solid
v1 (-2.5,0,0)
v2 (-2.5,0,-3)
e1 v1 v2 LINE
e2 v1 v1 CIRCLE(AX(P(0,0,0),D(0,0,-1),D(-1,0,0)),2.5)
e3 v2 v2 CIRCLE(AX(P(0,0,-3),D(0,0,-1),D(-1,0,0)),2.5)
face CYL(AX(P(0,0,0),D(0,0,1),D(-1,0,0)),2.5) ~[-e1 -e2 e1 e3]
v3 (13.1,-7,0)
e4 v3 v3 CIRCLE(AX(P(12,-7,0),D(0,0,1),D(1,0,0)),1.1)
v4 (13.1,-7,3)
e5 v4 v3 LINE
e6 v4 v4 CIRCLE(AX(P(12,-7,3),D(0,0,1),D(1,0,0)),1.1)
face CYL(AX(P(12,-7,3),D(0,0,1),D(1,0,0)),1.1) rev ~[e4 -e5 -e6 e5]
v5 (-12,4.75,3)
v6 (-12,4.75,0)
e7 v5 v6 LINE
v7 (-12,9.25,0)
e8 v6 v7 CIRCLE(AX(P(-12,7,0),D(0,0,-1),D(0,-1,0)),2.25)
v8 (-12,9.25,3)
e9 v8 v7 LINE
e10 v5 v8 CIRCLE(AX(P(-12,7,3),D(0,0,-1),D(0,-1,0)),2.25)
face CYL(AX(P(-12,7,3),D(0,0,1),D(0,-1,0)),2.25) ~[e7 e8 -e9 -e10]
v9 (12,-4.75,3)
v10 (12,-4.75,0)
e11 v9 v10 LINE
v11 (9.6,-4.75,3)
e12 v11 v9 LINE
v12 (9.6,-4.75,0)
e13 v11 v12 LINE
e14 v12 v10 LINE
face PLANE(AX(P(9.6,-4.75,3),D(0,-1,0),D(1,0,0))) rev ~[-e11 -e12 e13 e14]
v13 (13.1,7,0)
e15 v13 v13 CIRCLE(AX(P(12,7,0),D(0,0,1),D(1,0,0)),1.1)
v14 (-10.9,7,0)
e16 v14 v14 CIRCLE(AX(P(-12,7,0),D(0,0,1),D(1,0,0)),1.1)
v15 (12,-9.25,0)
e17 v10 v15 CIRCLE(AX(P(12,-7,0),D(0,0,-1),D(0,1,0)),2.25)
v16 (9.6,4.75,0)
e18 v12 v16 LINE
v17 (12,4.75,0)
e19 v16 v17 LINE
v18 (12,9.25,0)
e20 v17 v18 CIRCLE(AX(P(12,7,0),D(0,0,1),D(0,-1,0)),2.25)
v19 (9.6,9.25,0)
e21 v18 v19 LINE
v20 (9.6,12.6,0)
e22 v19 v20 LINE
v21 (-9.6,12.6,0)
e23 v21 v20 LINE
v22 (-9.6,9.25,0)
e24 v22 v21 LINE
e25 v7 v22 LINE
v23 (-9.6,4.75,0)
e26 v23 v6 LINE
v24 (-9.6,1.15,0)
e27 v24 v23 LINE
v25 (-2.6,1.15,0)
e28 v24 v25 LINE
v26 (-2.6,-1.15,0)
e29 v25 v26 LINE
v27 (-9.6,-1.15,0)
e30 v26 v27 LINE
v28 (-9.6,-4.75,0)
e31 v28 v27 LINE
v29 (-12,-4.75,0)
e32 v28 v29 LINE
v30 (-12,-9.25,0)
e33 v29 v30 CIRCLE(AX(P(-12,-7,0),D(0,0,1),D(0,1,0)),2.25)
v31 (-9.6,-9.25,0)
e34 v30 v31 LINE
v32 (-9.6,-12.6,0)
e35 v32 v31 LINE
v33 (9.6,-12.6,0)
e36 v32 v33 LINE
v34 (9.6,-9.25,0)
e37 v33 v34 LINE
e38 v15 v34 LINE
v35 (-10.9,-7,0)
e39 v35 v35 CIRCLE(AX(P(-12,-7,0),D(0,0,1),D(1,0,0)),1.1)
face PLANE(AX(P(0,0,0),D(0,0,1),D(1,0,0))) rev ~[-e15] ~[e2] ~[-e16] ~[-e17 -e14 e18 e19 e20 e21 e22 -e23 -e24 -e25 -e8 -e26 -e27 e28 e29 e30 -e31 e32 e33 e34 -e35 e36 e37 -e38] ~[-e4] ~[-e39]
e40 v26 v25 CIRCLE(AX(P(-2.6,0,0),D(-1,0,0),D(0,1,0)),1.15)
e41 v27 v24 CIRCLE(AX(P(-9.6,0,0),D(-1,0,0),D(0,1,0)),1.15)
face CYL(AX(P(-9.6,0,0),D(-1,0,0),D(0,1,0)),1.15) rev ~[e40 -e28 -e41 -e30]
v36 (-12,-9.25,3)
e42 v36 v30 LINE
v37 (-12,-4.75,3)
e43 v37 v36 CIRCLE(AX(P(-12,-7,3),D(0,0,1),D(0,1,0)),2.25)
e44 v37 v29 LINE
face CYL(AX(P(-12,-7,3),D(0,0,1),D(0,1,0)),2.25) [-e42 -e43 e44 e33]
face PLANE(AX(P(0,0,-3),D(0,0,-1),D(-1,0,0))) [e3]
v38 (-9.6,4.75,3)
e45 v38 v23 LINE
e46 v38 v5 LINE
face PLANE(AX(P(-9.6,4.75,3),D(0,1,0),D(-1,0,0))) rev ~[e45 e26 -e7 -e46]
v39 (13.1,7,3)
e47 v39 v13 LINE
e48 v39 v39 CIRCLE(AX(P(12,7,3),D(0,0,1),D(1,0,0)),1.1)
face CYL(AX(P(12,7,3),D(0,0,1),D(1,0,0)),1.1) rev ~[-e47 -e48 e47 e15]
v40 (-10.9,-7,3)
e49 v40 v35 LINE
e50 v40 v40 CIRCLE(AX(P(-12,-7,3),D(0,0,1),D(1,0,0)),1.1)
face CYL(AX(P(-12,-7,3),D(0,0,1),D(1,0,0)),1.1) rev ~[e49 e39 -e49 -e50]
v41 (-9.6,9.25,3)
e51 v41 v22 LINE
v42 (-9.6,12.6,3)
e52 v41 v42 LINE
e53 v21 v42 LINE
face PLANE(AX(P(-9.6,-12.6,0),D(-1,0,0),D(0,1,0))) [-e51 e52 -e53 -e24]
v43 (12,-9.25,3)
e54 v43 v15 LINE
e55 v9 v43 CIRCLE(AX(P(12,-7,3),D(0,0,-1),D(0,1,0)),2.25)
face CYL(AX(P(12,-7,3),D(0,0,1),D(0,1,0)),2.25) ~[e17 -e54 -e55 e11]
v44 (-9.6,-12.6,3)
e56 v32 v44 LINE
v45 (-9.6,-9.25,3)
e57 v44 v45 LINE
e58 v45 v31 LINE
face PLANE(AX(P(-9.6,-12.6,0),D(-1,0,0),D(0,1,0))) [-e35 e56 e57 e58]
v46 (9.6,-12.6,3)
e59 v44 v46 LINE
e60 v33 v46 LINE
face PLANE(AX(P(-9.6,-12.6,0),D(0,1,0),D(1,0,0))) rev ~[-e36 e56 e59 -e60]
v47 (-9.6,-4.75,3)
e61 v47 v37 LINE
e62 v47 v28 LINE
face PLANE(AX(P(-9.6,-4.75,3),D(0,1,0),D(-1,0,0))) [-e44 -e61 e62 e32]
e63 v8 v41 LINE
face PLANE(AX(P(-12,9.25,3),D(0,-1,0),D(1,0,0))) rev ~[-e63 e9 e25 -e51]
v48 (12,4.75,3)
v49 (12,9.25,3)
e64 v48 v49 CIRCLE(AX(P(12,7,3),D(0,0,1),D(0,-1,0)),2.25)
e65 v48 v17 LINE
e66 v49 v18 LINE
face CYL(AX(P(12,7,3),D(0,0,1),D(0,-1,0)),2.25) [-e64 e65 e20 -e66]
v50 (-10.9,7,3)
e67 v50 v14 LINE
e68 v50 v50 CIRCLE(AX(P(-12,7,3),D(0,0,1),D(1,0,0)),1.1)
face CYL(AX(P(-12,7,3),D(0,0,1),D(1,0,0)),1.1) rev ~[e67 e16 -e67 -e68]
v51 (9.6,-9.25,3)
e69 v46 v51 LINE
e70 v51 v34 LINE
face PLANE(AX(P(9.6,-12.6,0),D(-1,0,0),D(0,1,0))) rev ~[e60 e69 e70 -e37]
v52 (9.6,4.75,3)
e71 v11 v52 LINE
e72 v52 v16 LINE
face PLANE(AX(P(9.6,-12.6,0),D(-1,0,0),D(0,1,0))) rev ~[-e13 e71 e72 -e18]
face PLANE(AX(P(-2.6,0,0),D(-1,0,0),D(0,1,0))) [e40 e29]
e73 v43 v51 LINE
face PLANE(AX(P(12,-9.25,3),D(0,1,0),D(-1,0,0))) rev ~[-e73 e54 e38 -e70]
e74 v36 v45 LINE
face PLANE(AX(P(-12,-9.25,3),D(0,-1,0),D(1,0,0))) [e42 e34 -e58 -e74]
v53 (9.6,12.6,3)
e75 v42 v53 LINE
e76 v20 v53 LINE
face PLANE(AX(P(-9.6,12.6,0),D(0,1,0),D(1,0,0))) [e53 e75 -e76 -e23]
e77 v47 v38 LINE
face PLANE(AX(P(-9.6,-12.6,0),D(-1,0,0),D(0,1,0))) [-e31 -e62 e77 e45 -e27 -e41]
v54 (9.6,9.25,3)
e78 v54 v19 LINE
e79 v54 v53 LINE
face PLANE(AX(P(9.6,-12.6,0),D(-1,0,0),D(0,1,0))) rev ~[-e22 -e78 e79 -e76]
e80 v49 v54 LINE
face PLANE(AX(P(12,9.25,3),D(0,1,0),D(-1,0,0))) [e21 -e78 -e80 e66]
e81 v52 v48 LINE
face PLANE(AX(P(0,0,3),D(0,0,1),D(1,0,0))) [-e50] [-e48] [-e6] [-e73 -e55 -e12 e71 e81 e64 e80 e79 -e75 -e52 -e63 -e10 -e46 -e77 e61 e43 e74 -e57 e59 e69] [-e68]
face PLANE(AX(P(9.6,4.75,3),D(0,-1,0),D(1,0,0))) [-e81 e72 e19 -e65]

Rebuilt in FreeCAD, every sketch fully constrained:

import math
import FreeCAD as App
import Part
import Sketcher
Q = App.Units.Quantity

doc = App.newDocument("Part")
body = doc.addObject("PartDesign::Body", "Body")

# Sketch on XY plane
sketch1 = body.newObject("Sketcher::SketchObject", "Sketch")
sketch1.AttachmentSupport = (doc.getObject("XY_Plane"), [""])
sketch1.MapMode = "FlatFace"
sketch1.addGeometry(Part.LineSegment(App.Vector(-10, 13, 0), App.Vector(-10, -13, 0)), False)
sketch1.addGeometry(Part.LineSegment(App.Vector(-10, -13, 0), App.Vector(10, -13, 0)), False)
sketch1.addGeometry(Part.LineSegment(App.Vector(10, -13, 0), App.Vector(10, 13, 0)), False)
sketch1.addGeometry(Part.LineSegment(App.Vector(10, 13, 0), App.Vector(-10, 13, 0)), False)
sketch1.addConstraint(Sketcher.Constraint("Coincident", 0, 2, 1, 1))
sketch1.addConstraint(Sketcher.Constraint("Coincident", 1, 2, 2, 1))
sketch1.addConstraint(Sketcher.Constraint("Coincident", 2, 2, 3, 1))
sketch1.addConstraint(Sketcher.Constraint("Coincident", 3, 2, 0, 1))
sketch1.addConstraint(Sketcher.Constraint("Vertical", 0))
sketch1.addConstraint(Sketcher.Constraint("Horizontal", 1))
sketch1.addConstraint(Sketcher.Constraint("Vertical", 2))
sketch1.addConstraint(Sketcher.Constraint("Horizontal", 3))
sketch1.addConstraint(Sketcher.Constraint("Symmetric", 0, 2, 2, 2, -1, 1))
sketch1.addConstraint(Sketcher.Constraint("DistanceX", 1, 1, 1, 2, Q("19.2 mm")))
sketch1.addConstraint(Sketcher.Constraint("DistanceY", 0, 2, 0, 1, Q("25.2 mm")))
pad1 = body.newObject("PartDesign::Pad", "Pad")
pad1.Profile = sketch1
pad1.Length = 3

# Sketch on XY plane
sketch2 = body.newObject("Sketcher::SketchObject", "Sketch001")
sketch2.AttachmentSupport = (doc.getObject("XY_Plane"), [""])
sketch2.MapMode = "FlatFace"
sketch2.AttachmentOffset = App.Placement(App.Vector(0, 0, 3), App.Rotation())
sketch2.addGeometry(Part.LineSegment(App.Vector(12, 9.2, 0), App.Vector(9.6, 9.2, 0)), False)
sketch2.addGeometry(Part.LineSegment(App.Vector(9.6, 9.2, 0), App.Vector(9.6, 4.8, 0)), False)
sketch2.addGeometry(Part.LineSegment(App.Vector(9.6, 4.8, 0), App.Vector(12, 4.8, 0)), False)
sketch2.addGeometry(Part.ArcOfCircle(Part.Circle(App.Vector(12, 7, 0), App.Vector(0, 0, 1), 2.2), math.radians(-90), math.radians(90)), False)
sketch2.addGeometry(Part.Circle(App.Vector(12, 7, 0), App.Vector(0, 0, 1), 1.1), False)
sketch2.addGeometry(Part.LineSegment(App.Vector(9.6, -4.8, 0), App.Vector(9.6, -9.2, 0)), False)
sketch2.addGeometry(Part.LineSegment(App.Vector(9.6, -9.2, 0), App.Vector(12, -9.2, 0)), False)
sketch2.addGeometry(Part.ArcOfCircle(Part.Circle(App.Vector(12, -7, 0), App.Vector(0, 0, 1), 2.2), math.radians(-90), math.radians(90)), False)
sketch2.addGeometry(Part.LineSegment(App.Vector(12, -4.8, 0), App.Vector(9.6, -4.8, 0)), False)
sketch2.addGeometry(Part.Circle(App.Vector(12, -7, 0), App.Vector(0, 0, 1), 1.1), False)
sketch2.addGeometry(Part.LineSegment(App.Vector(-12, -9.2, 0), App.Vector(-9.6, -9.2, 0)), False)
sketch2.addGeometry(Part.LineSegment(App.Vector(-9.6, -9.2, 0), App.Vector(-9.6, -4.8, 0)), False)
sketch2.addGeometry(Part.LineSegment(App.Vector(-9.6, -4.8, 0), App.Vector(-12, -4.8, 0)), False)
sketch2.addGeometry(Part.ArcOfCircle(Part.Circle(App.Vector(-12, -7, 0), App.Vector(0, 0, 1), 2.2), math.radians(90), math.radians(270)), False)
sketch2.addGeometry(Part.Circle(App.Vector(-12, -7, 0), App.Vector(0, 0, 1), 1.1), False)
sketch2.addGeometry(Part.LineSegment(App.Vector(-9.6, 4.8, 0), App.Vector(-9.6, 9.2, 0)), False)
sketch2.addGeometry(Part.LineSegment(App.Vector(-9.6, 9.2, 0), App.Vector(-12, 9.2, 0)), False)
sketch2.addGeometry(Part.ArcOfCircle(Part.Circle(App.Vector(-12, 7, 0), App.Vector(0, 0, 1), 2.2), math.radians(90), math.radians(270)), False)
sketch2.addGeometry(Part.LineSegment(App.Vector(-12, 4.8, 0), App.Vector(-9.6, 4.8, 0)), False)
sketch2.addGeometry(Part.Circle(App.Vector(-12, 7, 0), App.Vector(0, 0, 1), 1.1), False)
sketch2.addConstraint(Sketcher.Constraint("Coincident", 0, 2, 1, 1))
sketch2.addConstraint(Sketcher.Constraint("Coincident", 1, 2, 2, 1))
sketch2.addConstraint(Sketcher.Constraint("Tangent", 2, 2, 3, 1))
sketch2.addConstraint(Sketcher.Constraint("Tangent", 3, 2, 0, 1))
sketch2.addConstraint(Sketcher.Constraint("Coincident", 5, 2, 6, 1))
sketch2.addConstraint(Sketcher.Constraint("Tangent", 6, 2, 7, 1))
sketch2.addConstraint(Sketcher.Constraint("Tangent", 7, 2, 8, 1))
sketch2.addConstraint(Sketcher.Constraint("Coincident", 8, 2, 5, 1))
sketch2.addConstraint(Sketcher.Constraint("Coincident", 10, 2, 11, 1))
sketch2.addConstraint(Sketcher.Constraint("Coincident", 11, 2, 12, 1))
sketch2.addConstraint(Sketcher.Constraint("Tangent", 12, 2, 13, 1))
sketch2.addConstraint(Sketcher.Constraint("Tangent", 13, 2, 10, 1))
sketch2.addConstraint(Sketcher.Constraint("Coincident", 15, 2, 16, 1))
sketch2.addConstraint(Sketcher.Constraint("Tangent", 16, 2, 17, 1))
sketch2.addConstraint(Sketcher.Constraint("Tangent", 17, 2, 18, 1))
sketch2.addConstraint(Sketcher.Constraint("Coincident", 18, 2, 15, 1))
sketch2.addConstraint(Sketcher.Constraint("Horizontal", 0))
sketch2.addConstraint(Sketcher.Constraint("Vertical", 1))
sketch2.addConstraint(Sketcher.Constraint("Horizontal", 2))
sketch2.addConstraint(Sketcher.Constraint("Vertical", 5))
sketch2.addConstraint(Sketcher.Constraint("Horizontal", 6))
sketch2.addConstraint(Sketcher.Constraint("Horizontal", 8))
sketch2.addConstraint(Sketcher.Constraint("Horizontal", 10))
sketch2.addConstraint(Sketcher.Constraint("Vertical", 11))
sketch2.addConstraint(Sketcher.Constraint("Horizontal", 12))
sketch2.addConstraint(Sketcher.Constraint("Vertical", 15))
sketch2.addConstraint(Sketcher.Constraint("Horizontal", 16))
sketch2.addConstraint(Sketcher.Constraint("Horizontal", 18))
sketch2.addConstraint(Sketcher.Constraint("Coincident", 4, 3, 3, 3))
sketch2.addConstraint(Sketcher.Constraint("Coincident", 9, 3, 7, 3))
sketch2.addConstraint(Sketcher.Constraint("Coincident", 14, 3, 13, 3))
sketch2.addConstraint(Sketcher.Constraint("Coincident", 19, 3, 17, 3))
sketch2.addConstraint(Sketcher.Constraint("Equal", 3, 7))
sketch2.addConstraint(Sketcher.Constraint("Equal", 4, 9))
sketch2.addConstraint(Sketcher.Constraint("Equal", 7, 13))
sketch2.addConstraint(Sketcher.Constraint("Equal", 9, 14))
sketch2.addConstraint(Sketcher.Constraint("Equal", 13, 17))
sketch2.addConstraint(Sketcher.Constraint("Equal", 14, 19))
sketch2.addConstraint(Sketcher.Constraint("Symmetric", 3, 3, 13, 3, -1, 1))
sketch2.addConstraint(Sketcher.Constraint("Symmetric", 7, 3, 17, 3, -1, 1))
sketch2.addConstraint(Sketcher.Constraint("Symmetric", 7, 3, 13, 3, -2))
sketch2.addConstraint(Sketcher.Constraint("Vertical", 1, 2, 5, 2))
sketch2.addConstraint(Sketcher.Constraint("Vertical", 11, 2, 15, 2))
sketch2.addConstraint(Sketcher.Constraint("Equal", 8, 10))
sketch2.addConstraint(Sketcher.Constraint("Diameter", 4, Q("2.2 mm")))
sketch2.addConstraint(Sketcher.Constraint("Radius", 3, Q("2.25 mm")))
sketch2.addConstraint(Sketcher.Constraint("DistanceX", 0, 2, 0, 1, Q("2.4 mm")))
sketch2.addConstraint(Sketcher.Constraint("DistanceX", -1, 1, 3, 3, Q("12 mm")))
sketch2.addConstraint(Sketcher.Constraint("DistanceY", -1, 1, 3, 3, Q("7 mm")))
pad2 = body.newObject("PartDesign::Pad", "Pad001")
pad2.Profile = sketch2
pad2.Type = "UpToLast"
pad2.Reversed = True
doc.recompute()

mirrored = body.newObject("PartDesign::Mirrored", "Mirrored")
mirrored.Originals = [pad2]
mirrored.MirrorPlane = (doc.getObject("XZ_Plane"), [""])
body.Tip = mirrored

# Sketch on YZ plane
sketch3 = body.newObject("Sketcher::SketchObject", "Sketch002")
sketch3.AttachmentSupport = (doc.getObject("YZ_Plane"), [""])
sketch3.MapMode = "FlatFace"
sketch3.AttachmentOffset = App.Placement(App.Vector(0, 0, -9.6), App.Rotation())
sketch3.addGeometry(Part.Circle(App.Vector(0, 0, 0), App.Vector(0, 0, 1), 1.1), False)
sketch3.addConstraint(Sketcher.Constraint("Coincident", 0, 3, -1, 1))
sketch3.addConstraint(Sketcher.Constraint("Diameter", 0, Q("2.3 mm")))
pocket1 = body.newObject("PartDesign::Pocket", "Pocket")
pocket1.Profile = sketch3
pocket1.Length = 7
pocket1.Reversed = True

# Sketch on XY plane
sketch4 = body.newObject("Sketcher::SketchObject", "Sketch003")
sketch4.AttachmentSupport = (doc.getObject("XY_Plane"), [""])
sketch4.MapMode = "FlatFace"
sketch4.addGeometry(Part.Circle(App.Vector(0, 0, 0), App.Vector(0, 0, 1), 2.5), False)
sketch4.addConstraint(Sketcher.Constraint("Coincident", 0, 3, -1, 1))
sketch4.addConstraint(Sketcher.Constraint("Diameter", 0, Q("5 mm")))
pad3 = body.newObject("PartDesign::Pad", "Pad002")
pad3.Profile = sketch4
pad3.Length = 3
pad3.Reversed = True

doc.recompute()
